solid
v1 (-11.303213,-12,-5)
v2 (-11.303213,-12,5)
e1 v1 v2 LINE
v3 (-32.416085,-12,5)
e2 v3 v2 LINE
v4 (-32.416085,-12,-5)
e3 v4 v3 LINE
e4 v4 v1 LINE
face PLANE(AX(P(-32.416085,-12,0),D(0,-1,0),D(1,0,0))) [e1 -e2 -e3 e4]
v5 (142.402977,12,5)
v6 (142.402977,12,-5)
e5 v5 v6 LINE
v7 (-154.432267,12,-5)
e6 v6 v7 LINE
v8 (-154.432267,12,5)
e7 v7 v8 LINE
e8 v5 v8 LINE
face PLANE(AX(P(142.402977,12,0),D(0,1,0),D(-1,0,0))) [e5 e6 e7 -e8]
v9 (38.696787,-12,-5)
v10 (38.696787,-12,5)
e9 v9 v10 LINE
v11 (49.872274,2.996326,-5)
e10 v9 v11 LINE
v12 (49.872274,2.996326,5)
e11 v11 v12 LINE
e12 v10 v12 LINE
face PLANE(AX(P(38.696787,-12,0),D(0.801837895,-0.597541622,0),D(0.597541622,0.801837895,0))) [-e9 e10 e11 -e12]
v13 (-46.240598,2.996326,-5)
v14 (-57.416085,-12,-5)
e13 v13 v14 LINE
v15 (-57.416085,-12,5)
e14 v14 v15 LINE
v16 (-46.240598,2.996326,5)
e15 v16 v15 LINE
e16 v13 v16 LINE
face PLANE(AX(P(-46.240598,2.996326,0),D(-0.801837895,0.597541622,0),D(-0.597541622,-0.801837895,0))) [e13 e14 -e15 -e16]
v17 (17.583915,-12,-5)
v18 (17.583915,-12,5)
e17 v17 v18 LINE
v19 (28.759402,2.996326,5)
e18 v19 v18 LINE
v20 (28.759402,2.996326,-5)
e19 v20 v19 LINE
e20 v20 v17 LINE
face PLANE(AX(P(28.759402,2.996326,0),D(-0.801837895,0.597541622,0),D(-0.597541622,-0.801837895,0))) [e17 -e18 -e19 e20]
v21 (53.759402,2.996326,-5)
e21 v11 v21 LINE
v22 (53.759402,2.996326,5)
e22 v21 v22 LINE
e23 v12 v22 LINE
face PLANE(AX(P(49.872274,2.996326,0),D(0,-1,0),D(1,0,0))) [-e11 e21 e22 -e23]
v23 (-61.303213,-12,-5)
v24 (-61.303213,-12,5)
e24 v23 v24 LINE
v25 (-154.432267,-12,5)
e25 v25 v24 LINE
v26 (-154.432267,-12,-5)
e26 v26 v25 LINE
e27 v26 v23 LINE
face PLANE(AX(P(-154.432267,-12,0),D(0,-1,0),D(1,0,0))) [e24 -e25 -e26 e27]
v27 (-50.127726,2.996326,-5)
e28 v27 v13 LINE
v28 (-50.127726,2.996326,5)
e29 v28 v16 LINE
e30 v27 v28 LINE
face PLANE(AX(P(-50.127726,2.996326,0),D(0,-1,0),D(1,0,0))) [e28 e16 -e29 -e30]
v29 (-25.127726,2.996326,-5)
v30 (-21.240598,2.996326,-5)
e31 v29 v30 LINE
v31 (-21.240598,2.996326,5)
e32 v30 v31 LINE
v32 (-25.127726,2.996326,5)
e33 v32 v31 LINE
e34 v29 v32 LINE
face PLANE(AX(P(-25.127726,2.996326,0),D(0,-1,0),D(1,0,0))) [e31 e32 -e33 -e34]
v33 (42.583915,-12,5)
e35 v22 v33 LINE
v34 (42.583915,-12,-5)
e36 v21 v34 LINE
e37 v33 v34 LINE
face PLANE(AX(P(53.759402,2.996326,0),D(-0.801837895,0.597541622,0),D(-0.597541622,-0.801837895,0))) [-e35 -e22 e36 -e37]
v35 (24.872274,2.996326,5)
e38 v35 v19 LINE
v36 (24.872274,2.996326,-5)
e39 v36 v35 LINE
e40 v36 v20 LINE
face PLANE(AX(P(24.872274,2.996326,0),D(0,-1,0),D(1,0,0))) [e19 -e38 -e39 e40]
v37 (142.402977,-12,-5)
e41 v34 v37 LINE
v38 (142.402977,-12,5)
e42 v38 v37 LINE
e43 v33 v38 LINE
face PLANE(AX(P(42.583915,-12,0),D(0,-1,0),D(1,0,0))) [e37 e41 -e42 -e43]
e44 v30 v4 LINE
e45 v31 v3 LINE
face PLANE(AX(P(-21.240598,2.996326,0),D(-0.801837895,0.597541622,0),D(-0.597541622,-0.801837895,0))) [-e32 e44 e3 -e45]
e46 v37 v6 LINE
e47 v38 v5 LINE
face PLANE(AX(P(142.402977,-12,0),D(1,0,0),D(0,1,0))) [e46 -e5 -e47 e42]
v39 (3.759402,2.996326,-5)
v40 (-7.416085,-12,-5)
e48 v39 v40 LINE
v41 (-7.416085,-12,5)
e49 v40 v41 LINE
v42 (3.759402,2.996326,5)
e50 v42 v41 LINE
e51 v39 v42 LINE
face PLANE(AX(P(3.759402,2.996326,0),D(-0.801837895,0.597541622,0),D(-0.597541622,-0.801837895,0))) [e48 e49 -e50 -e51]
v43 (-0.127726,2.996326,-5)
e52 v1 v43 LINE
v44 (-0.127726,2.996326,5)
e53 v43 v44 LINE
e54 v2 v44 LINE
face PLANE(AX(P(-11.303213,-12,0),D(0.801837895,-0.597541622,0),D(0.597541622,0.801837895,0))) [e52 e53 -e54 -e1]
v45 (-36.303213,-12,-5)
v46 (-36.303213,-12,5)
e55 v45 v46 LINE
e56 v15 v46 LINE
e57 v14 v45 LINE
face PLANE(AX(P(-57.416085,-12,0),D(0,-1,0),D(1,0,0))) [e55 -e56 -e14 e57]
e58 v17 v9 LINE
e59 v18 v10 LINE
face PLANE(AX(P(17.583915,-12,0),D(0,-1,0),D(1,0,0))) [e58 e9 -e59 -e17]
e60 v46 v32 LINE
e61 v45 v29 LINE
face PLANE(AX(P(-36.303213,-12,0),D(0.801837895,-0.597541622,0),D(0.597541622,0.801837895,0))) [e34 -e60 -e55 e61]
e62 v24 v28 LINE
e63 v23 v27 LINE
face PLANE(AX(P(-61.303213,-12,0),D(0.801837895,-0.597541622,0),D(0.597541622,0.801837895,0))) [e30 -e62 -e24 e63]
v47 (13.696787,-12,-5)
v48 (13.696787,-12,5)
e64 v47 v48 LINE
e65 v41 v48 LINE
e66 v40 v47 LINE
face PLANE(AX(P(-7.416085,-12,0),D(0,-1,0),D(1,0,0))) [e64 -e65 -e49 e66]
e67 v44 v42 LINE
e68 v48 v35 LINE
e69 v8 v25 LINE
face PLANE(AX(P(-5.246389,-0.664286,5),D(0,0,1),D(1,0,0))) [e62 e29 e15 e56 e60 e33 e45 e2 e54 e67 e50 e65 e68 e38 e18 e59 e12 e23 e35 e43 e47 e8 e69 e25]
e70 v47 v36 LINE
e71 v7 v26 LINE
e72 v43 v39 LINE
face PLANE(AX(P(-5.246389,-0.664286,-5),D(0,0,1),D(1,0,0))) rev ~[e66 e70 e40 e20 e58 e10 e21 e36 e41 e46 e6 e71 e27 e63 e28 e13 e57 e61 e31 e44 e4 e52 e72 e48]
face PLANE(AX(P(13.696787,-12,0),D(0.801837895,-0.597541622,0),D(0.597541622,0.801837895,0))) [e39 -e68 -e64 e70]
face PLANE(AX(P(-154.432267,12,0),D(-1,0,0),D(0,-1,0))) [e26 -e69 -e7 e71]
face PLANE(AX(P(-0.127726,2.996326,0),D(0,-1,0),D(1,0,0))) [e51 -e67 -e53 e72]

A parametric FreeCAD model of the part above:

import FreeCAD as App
import Part
import Sketcher

V = App.Vector
Q = App.Units.Quantity

doc = App.newDocument("Part")
body = doc.addObject("PartDesign::Body", "Body")

# Sketch on XY plane
sketch1 = body.newObject("Sketcher::SketchObject", "Sketch")
sketch1.AttachmentSupport = (doc.getObject("XY_Plane"), [""])
sketch1.MapMode = "FlatFace"
sketch1.addGeometry(Part.LineSegment(V(142.402977, 12, 0), V(-154.432267, 12, 0)), False)
sketch1.addGeometry(Part.LineSegment(V(-154.432267, 12, 0), V(-154.432267, -12, 0)), False)
sketch1.addGeometry(Part.LineSegment(V(-154.432267, -12, 0), V(-61.303213, -12, 0)), False)
sketch1.addGeometry(Part.LineSegment(V(-61.303213, -12, 0), V(-50.127726, 2.996326, 0)), False)
sketch1.addGeometry(Part.LineSegment(V(-50.127726, 2.996326, 0), V(-46.240598, 2.996326, 0)), False)
sketch1.addGeometry(Part.LineSegment(V(-46.240598, 2.996326, 0), V(-57.416085, -12, 0)), False)
sketch1.addGeometry(Part.LineSegment(V(-57.416085, -12, 0), V(-36.303213, -12, 0)), False)
sketch1.addGeometry(Part.LineSegment(V(-36.303213, -12, 0), V(-25.127726, 2.996326, 0)), False)
sketch1.addGeometry(Part.LineSegment(V(-25.127726, 2.996326, 0), V(-21.240598, 2.996326, 0)), False)
sketch1.addGeometry(Part.LineSegment(V(-21.240598, 2.996326, 0), V(-32.416085, -12, 0)), False)
sketch1.addGeometry(Part.LineSegment(V(-32.416085, -12, 0), V(-11.303213, -12, 0)), False)
sketch1.addGeometry(Part.LineSegment(V(-11.303213, -12, 0), V(-0.127726, 2.996326, 0)), False)
sketch1.addGeometry(Part.LineSegment(V(-0.127726, 2.996326, 0), V(3.759402, 2.996326, 0)), False)
sketch1.addGeometry(Part.LineSegment(V(3.759402, 2.996326, 0), V(-7.416085, -12, 0)), False)
sketch1.addGeometry(Part.LineSegment(V(-7.416085, -12, 0), V(13.696787, -12, 0)), False)
sketch1.addGeometry(Part.LineSegment(V(13.696787, -12, 0), V(24.872274, 2.996326, 0)), False)
sketch1.addGeometry(Part.LineSegment(V(24.872274, 2.996326, 0), V(28.759402, 2.996326, 0)), False)
sketch1.addGeometry(Part.LineSegment(V(28.759402, 2.996326, 0), V(17.583915, -12, 0)), False)
sketch1.addGeometry(Part.LineSegment(V(17.583915, -12, 0), V(38.696787, -12, 0)), False)
sketch1.addGeometry(Part.LineSegment(V(38.696787, -12, 0), V(49.872274, 2.996326, 0)), False)
sketch1.addGeometry(Part.LineSegment(V(49.872274, 2.996326, 0), V(53.759402, 2.996326, 0)), False)
sketch1.addGeometry(Part.LineSegment(V(53.759402, 2.996326, 0), V(42.583915, -12, 0)), False)
sketch1.addGeometry(Part.LineSegment(V(42.583915, -12, 0), V(142.402977, -12, 0)), False)
sketch1.addGeometry(Part.LineSegment(V(142.402977, -12, 0), V(142.402977, 12, 0)), False)
sketch1.addConstraint(Sketcher.Constraint("Coincident", 0, 2, 1, 1))
sketch1.addConstraint(Sketcher.Constraint("Coincident", 1, 2, 2, 1))
sketch1.addConstraint(Sketcher.Constraint("Coincident", 2, 2, 3, 1))
sketch1.addConstraint(Sketcher.Constraint("Coincident", 3, 2, 4, 1))
sketch1.addConstraint(Sketcher.Constraint("Coincident", 4, 2, 5, 1))
sketch1.addConstraint(Sketcher.Constraint("Coincident", 5, 2, 6, 1))
sketch1.addConstraint(Sketcher.Constraint("Coincident", 6, 2, 7, 1))
sketch1.addConstraint(Sketcher.Constraint("Coincident", 7, 2, 8, 1))
sketch1.addConstraint(Sketcher.Constraint("Coincident", 8, 2, 9, 1))
sketch1.addConstraint(Sketcher.Constraint("Coincident", 9, 2, 10, 1))
sketch1.addConstraint(Sketcher.Constraint("Coincident", 10, 2, 11, 1))
sketch1.addConstraint(Sketcher.Constraint("Coincident", 11, 2, 12, 1))
sketch1.addConstraint(Sketcher.Constraint("Coincident", 12, 2, 13, 1))
sketch1.addConstraint(Sketcher.Constraint("Coincident", 13, 2, 14, 1))
sketch1.addConstraint(Sketcher.Constraint("Coincident", 14, 2, 15, 1))
sketch1.addConstraint(Sketcher.Constraint("Coincident", 15, 2, 16, 1))
sketch1.addConstraint(Sketcher.Constraint("Coincident", 16, 2, 17, 1))
sketch1.addConstraint(Sketcher.Constraint("Coincident", 17, 2, 18, 1))
sketch1.addConstraint(Sketcher.Constraint("Coincident", 18, 2, 19, 1))
sketch1.addConstraint(Sketcher.Constraint("Coincident", 19, 2, 20, 1))
sketch1.addConstraint(Sketcher.Constraint("Coincident", 20, 2, 21, 1))
sketch1.addConstraint(Sketcher.Constraint("Coincident", 21, 2, 22, 1))
sketch1.addConstraint(Sketcher.Constraint("Coincident", 22, 2, 23, 1))
sketch1.addConstraint(Sketcher.Constraint("Coincident", 23, 2, 0, 1))
sketch1.addConstraint(Sketcher.Constraint("Horizontal", 0))
sketch1.addConstraint(Sketcher.Constraint("Vertical", 1))
sketch1.addConstraint(Sketcher.Constraint("Horizontal", 2))
sketch1.addConstraint(Sketcher.Constraint("Horizontal", 4))
sketch1.addConstraint(Sketcher.Constraint("Horizontal", 6))
sketch1.addConstraint(Sketcher.Constraint("Horizontal", 8))
sketch1.addConstraint(Sketcher.Constraint("Horizontal", 10))
sketch1.addConstraint(Sketcher.Constraint("Horizontal", 12))
sketch1.addConstraint(Sketcher.Constraint("Horizontal", 14))
sketch1.addConstraint(Sketcher.Constraint("Horizontal", 16))
sketch1.addConstraint(Sketcher.Constraint("Horizontal", 18))
sketch1.addConstraint(Sketcher.Constraint("Horizontal", 20))
sketch1.addConstraint(Sketcher.Constraint("Horizontal", 22))
sketch1.addConstraint(Sketcher.Constraint("Vertical", 23))
sketch1.addConstraint(Sketcher.Constraint("Parallel", 3, 5))
sketch1.addConstraint(Sketcher.Constraint("Parallel", 5, 7))
sketch1.addConstraint(Sketcher.Constraint("Parallel", 7, 9))
sketch1.addConstraint(Sketcher.Constraint("Parallel", 9, 11))
sketch1.addConstraint(Sketcher.Constraint("Parallel", 11, 13))
sketch1.addConstraint(Sketcher.Constraint("Parallel", 13, 15))
sketch1.addConstraint(Sketcher.Constraint("Parallel", 15, 17))
sketch1.addConstraint(Sketcher.Constraint("Parallel", 17, 19))
sketch1.addConstraint(Sketcher.Constraint("Parallel", 19, 21))
sketch1.addConstraint(Sketcher.Constraint("Horizontal", 2, 2, 5, 2))
sketch1.addConstraint(Sketcher.Constraint("Horizontal", 4, 2, 7, 2))
sketch1.addConstraint(Sketcher.Constraint("Horizontal", 6, 2, 9, 2))
sketch1.addConstraint(Sketcher.Constraint("Horizontal", 8, 2, 11, 2))
sketch1.addConstraint(Sketcher.Constraint("Horizontal", 10, 2, 13, 2))
sketch1.addConstraint(Sketcher.Constraint("Horizontal", 12, 2, 15, 2))
sketch1.addConstraint(Sketcher.Constraint("Horizontal", 14, 2, 17, 2))
sketch1.addConstraint(Sketcher.Constraint("Horizontal", 16, 2, 19, 2))
sketch1.addConstraint(Sketcher.Constraint("Horizontal", 18, 2, 21, 2))
sketch1.addConstraint(Sketcher.Constraint("Equal", 4, 8))
sketch1.addConstraint(Sketcher.Constraint("Equal", 6, 10))
sketch1.addConstraint(Sketcher.Constraint("Equal", 8, 12))
sketch1.addConstraint(Sketcher.Constraint("Equal", 10, 14))
sketch1.addConstraint(Sketcher.Constraint("Equal", 12, 16))
sketch1.addConstraint(Sketcher.Constraint("Equal", 14, 18))
sketch1.addConstraint(Sketcher.Constraint("Equal", 16, 20))
sketch1.addConstraint(Sketcher.Constraint("DistanceY", 1, 2, 1, 1, Q("24 mm")))
sketch1.addConstraint(Sketcher.Constraint("DistanceY", -1, 1, 0, 2, Q("12 mm")))
sketch1.addConstraint(Sketcher.Constraint("DistanceX", 2, 2, 6, 2, Q("25 mm")))
sketch1.addConstraint(Sketcher.Constraint("DistanceX", 4, 1, 4, 2, Q("3.887128 mm")))
sketch1.addConstraint(Sketcher.Constraint("Distance", 3, Q("18.702441 mm")))
sketch1.addConstraint(Sketcher.Constraint("DistanceX", 0, 2, 0, 1, Q("296.835244 mm")))
sketch1.addConstraint(Sketcher.Constraint("DistanceX", 2, 1, 2, 2, Q("93.129054 mm")))
sketch1.addConstraint(Sketcher.Constraint("DistanceX", 0, 2, 3, 2, Q("104.304541 mm")))
sketch1.addConstraint(Sketcher.Constraint("DistanceX", 0, 2, -1, 1, Q("154.432267 mm")))
pad1 = body.newObject("PartDesign::Pad", "Pad")
pad1.Profile = sketch1
pad1.Type = "TwoLengths"
pad1.Length = 5
pad1.Length2 = 5

doc.recompute()
